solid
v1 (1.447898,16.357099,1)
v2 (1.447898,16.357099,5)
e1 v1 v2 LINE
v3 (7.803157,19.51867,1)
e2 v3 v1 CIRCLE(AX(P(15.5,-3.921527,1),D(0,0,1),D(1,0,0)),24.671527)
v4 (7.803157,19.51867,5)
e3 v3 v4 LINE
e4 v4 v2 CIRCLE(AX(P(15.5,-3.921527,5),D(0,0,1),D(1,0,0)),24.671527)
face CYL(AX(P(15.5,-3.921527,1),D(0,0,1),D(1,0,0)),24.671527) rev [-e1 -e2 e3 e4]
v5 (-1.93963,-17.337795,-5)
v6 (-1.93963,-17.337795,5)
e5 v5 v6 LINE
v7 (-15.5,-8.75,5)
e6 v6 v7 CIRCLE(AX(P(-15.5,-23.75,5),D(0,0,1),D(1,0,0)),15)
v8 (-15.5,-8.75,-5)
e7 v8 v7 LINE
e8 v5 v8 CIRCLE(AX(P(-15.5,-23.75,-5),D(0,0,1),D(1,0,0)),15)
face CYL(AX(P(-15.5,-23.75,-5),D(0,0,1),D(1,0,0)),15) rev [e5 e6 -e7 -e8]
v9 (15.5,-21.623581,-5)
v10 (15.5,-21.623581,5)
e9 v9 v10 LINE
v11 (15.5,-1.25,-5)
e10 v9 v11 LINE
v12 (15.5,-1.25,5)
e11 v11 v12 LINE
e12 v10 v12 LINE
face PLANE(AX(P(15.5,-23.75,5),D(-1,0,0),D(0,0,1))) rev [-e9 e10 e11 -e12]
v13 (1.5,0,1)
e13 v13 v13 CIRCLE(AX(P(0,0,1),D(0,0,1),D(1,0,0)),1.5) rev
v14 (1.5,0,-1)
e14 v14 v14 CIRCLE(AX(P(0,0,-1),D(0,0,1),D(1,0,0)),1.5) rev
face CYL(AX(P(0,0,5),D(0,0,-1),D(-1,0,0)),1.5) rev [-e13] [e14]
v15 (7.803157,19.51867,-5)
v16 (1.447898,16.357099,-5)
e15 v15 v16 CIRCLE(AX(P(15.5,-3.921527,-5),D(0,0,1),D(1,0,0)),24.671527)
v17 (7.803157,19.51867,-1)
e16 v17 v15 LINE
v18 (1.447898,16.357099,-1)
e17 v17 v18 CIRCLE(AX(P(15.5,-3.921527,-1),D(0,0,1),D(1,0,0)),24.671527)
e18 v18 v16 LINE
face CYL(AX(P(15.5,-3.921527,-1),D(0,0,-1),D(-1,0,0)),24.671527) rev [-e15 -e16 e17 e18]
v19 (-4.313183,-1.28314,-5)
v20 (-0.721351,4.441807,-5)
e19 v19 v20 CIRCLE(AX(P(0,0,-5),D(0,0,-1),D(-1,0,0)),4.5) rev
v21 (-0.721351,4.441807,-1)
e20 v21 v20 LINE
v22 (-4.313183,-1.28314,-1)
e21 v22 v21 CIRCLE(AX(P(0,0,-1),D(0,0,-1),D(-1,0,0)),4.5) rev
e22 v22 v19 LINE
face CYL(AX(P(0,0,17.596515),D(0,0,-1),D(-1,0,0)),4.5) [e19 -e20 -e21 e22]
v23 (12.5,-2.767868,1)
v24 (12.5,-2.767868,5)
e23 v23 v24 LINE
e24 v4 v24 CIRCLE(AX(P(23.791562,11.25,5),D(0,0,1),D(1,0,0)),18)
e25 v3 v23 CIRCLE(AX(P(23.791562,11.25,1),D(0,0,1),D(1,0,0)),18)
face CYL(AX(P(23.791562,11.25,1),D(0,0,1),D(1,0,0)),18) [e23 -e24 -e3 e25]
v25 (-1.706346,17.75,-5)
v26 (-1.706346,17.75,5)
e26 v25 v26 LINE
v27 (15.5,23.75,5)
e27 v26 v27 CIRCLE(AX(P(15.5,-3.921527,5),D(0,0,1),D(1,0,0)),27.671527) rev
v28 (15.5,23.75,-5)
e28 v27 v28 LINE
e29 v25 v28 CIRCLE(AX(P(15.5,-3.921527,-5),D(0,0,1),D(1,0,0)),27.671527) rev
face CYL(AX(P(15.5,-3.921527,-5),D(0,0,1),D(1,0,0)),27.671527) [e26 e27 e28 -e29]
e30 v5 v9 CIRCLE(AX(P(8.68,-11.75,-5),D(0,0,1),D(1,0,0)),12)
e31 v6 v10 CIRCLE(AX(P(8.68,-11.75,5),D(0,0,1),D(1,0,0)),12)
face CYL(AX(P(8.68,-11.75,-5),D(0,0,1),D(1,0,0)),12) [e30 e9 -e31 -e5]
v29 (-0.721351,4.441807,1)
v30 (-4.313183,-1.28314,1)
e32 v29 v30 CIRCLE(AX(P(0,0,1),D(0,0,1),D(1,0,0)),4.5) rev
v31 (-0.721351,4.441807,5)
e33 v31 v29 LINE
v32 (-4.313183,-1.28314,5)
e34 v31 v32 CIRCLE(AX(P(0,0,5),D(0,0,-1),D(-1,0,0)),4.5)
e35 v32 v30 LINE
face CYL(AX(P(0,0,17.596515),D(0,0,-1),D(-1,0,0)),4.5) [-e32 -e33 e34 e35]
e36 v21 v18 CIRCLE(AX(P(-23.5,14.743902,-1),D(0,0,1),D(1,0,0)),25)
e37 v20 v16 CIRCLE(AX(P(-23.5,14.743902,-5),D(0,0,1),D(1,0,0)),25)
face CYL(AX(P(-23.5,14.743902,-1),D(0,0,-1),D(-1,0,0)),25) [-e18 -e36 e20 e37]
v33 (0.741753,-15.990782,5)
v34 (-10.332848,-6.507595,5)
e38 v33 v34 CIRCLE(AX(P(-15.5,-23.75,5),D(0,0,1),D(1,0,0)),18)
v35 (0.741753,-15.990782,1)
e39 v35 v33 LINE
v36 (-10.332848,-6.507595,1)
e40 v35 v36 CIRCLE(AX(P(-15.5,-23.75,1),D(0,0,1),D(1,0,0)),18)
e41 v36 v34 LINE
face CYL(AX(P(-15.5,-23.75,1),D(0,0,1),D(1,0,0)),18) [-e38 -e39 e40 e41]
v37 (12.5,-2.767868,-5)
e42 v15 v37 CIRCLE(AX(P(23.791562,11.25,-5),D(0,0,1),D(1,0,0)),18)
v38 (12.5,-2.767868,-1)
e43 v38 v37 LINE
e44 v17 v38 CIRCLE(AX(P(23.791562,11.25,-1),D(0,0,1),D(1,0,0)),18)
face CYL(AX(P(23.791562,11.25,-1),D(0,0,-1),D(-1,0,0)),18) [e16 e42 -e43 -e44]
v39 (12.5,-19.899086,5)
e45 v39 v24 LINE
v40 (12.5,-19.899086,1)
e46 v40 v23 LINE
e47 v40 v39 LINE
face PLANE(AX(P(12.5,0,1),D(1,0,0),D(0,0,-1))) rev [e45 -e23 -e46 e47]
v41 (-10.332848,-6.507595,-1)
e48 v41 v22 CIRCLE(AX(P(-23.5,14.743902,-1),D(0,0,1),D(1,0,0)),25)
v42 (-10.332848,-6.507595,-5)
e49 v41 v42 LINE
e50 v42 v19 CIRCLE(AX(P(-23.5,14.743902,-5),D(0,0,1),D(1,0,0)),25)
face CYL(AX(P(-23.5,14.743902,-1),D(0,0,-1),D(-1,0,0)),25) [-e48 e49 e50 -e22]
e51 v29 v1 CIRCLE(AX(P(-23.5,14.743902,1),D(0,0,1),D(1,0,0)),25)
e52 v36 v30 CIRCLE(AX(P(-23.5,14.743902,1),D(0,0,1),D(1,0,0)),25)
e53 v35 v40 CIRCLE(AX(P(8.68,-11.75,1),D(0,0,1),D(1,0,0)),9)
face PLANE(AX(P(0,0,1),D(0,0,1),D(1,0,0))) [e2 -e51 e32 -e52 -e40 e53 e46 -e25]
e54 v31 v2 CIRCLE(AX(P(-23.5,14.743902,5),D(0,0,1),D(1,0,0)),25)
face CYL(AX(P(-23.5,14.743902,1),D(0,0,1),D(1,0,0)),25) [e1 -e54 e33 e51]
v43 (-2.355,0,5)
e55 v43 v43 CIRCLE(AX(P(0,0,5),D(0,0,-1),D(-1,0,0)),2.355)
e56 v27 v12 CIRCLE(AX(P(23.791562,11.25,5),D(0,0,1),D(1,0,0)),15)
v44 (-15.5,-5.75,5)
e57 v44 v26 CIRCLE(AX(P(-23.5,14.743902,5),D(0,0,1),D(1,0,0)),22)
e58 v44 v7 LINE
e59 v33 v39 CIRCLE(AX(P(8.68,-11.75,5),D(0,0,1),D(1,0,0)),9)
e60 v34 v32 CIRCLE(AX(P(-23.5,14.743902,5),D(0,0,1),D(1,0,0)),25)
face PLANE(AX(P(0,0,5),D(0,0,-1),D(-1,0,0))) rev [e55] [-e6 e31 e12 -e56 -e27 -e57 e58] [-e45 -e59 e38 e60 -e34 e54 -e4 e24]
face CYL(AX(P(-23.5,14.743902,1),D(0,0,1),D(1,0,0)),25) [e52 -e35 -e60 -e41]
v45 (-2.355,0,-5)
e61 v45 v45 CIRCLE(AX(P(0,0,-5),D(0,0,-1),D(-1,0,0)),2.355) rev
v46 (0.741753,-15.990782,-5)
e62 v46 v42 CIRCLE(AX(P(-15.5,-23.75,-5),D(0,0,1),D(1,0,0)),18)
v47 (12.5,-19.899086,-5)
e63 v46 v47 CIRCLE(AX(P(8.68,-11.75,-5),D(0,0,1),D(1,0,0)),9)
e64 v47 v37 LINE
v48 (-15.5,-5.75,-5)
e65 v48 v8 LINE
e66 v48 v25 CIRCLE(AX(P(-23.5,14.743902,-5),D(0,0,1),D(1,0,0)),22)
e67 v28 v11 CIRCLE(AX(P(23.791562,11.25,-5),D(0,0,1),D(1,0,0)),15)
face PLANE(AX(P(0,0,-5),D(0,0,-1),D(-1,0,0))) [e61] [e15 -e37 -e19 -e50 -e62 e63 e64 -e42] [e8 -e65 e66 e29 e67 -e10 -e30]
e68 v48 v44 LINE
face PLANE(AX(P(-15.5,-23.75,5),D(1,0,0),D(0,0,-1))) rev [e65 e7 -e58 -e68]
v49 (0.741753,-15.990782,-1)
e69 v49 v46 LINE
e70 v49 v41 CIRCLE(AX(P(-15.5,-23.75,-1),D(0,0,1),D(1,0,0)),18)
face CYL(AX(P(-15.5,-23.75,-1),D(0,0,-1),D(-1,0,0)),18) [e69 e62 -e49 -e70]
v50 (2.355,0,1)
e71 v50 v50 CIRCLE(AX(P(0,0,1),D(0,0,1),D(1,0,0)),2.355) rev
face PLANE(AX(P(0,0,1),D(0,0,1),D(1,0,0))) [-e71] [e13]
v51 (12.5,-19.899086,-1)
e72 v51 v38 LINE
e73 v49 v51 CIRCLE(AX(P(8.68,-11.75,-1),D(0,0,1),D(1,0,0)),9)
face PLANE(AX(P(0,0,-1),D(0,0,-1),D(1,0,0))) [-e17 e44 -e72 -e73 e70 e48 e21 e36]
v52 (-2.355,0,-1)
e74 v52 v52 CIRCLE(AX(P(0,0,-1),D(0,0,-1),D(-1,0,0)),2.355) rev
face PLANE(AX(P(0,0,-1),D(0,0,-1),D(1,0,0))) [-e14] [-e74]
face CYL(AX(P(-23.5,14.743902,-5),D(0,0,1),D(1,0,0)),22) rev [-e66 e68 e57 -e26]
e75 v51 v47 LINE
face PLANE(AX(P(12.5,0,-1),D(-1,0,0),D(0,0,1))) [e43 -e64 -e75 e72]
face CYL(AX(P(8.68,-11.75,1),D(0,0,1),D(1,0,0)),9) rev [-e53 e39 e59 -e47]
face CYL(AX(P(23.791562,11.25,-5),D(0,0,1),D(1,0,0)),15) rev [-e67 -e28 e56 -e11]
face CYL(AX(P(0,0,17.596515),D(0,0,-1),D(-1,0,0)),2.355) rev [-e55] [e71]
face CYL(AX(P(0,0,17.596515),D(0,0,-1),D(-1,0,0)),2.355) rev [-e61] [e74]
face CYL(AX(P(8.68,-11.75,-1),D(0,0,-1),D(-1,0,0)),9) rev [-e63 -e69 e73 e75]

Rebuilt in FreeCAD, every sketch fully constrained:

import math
import FreeCAD as App
import Part
import Sketcher
from FreeCAD import Vector

doc = App.newDocument("Part")
body = doc.addObject("PartDesign::Body", "Body")

# Sketch on XY plane
sketch1 = body.newObject("Sketcher::SketchObject", "Sketch")
sketch1.AttachmentSupport = (doc.getObject("XY_Plane"), [""])
sketch1.MapMode = "FlatFace"
sketch1.addGeometry([
    Part.LineSegment(Vector(-15.5, 23.8, 0), Vector(-15.5, -23.8, 0)),  # 0
    Part.LineSegment(Vector(-15.5, -23.8, 0), Vector(15.5, -23.8, 0)),  # 1
    Part.LineSegment(Vector(15.5, -23.8, 0), Vector(15.5, 23.8, 0)),  # 2
    Part.LineSegment(Vector(15.5, 23.8, 0), Vector(-15.5, 23.8, 0)),  # 3
    Part.Circle(Vector(0, 0, 0), Vector(0, 0, 1), 1.5),  # 4
], False)
sketch1.addConstraint([
    Sketcher.Constraint("Coincident", 0, 2, 1, 1),
    Sketcher.Constraint("Coincident", 1, 2, 2, 1),
    Sketcher.Constraint("Coincident", 2, 2, 3, 1),
    Sketcher.Constraint("Coincident", 3, 2, 0, 1),
    Sketcher.Constraint("Vertical", 0),
    Sketcher.Constraint("Horizontal", 1),
    Sketcher.Constraint("Vertical", 2),
    Sketcher.Constraint("Horizontal", 3),
    Sketcher.Constraint("Coincident", 4, 3, -1, 1),
    Sketcher.Constraint("Symmetric", 0, 2, 2, 2, -1, 1),
    Sketcher.Constraint("Diameter", 4, 3.0),
    Sketcher.Constraint("DistanceX", 1, 1, 1, 2, 31.0),
    Sketcher.Constraint("DistanceY", 0, 2, 0, 1, 47.5),
])
pad1 = body.newObject("PartDesign::Pad", "Pad")
pad1.Profile = sketch1
pad1.Length = 10
pad1.Midplane = True

# Sketch on XY plane
sketch2 = body.newObject("Sketcher::SketchObject", "Sketch001")
sketch2.AttachmentSupport = (doc.getObject("XY_Plane"), [""])
sketch2.MapMode = "FlatFace"
sketch2.AttachmentOffset = App.Placement(Vector(0, 0, 5), App.Rotation())
sketch2.addGeometry([
    Part.ArcOfCircle(Part.Circle(Vector(-15.5, -23.8, 0), Vector(0, 0, 1), 15), math.radians(90), math.radians(360)),  # 0
    Part.LineSegment(Vector(-0.5, -23.8, 0), Vector(8.7, -23.8, 0)),  # 1
    Part.ArcOfCircle(Part.Circle(Vector(8.7, -11.7, 0), Vector(0, 0, 1), 12), math.radians(-152), math.radians(-90)),  # 2
    Part.ArcOfCircle(Part.Circle(Vector(-15.5, -23.8, 0), Vector(0, 0, 1), 15), math.radians(25), math.radians(90)),  # 3
    Part.LineSegment(Vector(8.7, -23.8, 0), Vector(15.5, -23.8, 0)),  # 4
    Part.LineSegment(Vector(15.5, -23.8, 0), Vector(15.5, -21.6, 0)),  # 5
    Part.ArcOfCircle(Part.Circle(Vector(8.7, -11.8, 0), Vector(0, 0, 1), 12), math.radians(-90), math.radians(-55)),  # 6
    Part.ArcOfCircle(Part.Circle(Vector(15.5, -3.9, 0), Vector(0, 0, 1), 27.7), math.radians(90), math.radians(128)),  # 7
    Part.LineSegment(Vector(15.5, 23.8, 0), Vector(-15.5, 23.8, 0)),  # 8
    Part.LineSegment(Vector(-15.5, 23.8, 0), Vector(-15.5, -5.8, 0)),  # 9
    Part.ArcOfCircle(Part.Circle(Vector(-23.5, 14.7, 0), Vector(0, 0, 1), 22), math.radians(-69), math.radians(8)),  # 10
    Part.ArcOfCircle(Part.Circle(Vector(23.8, 11.2, 0), Vector(0, 0, 1), 15), math.radians(124), math.radians(236)),  # 11
    Part.LineSegment(Vector(15.5, -1.2, 0), Vector(15.5, 23.8, 0)),  # 12
], False)
sketch2.addConstraint([
    Sketcher.Constraint("Coincident", 0, 2, 1, 1),
    Sketcher.Constraint("Tangent", 1, 2, 2, 2),
    Sketcher.Constraint("Coincident", 2, 1, 3, 1),
    Sketcher.Constraint("Tangent", 3, 2, 0, 1),
    Sketcher.Constraint("Coincident", 4, 2, 5, 1),
    Sketcher.Constraint("Coincident", 5, 2, 6, 2),
    Sketcher.Constraint("Tangent", 6, 1, 4, 1),
    Sketcher.Constraint("Tangent", 7, 1, 8, 1),
    Sketcher.Constraint("Coincident", 8, 2, 9, 1),
    Sketcher.Constraint("Coincident", 9, 2, 10, 1),
    Sketcher.Constraint("Coincident", 10, 2, 7, 2),
    Sketcher.Constraint("Coincident", 11, 1, 12, 2),
    Sketcher.Constraint("Coincident", 12, 1, 11, 2),
    Sketcher.Constraint("Horizontal", 1),
    Sketcher.Constraint("Horizontal", 4),
    Sketcher.Constraint("Vertical", 5),
    Sketcher.Constraint("Horizontal", 8),
    Sketcher.Constraint("Vertical", 9),
    Sketcher.Constraint("Vertical", 12),
    Sketcher.Constraint("Coincident", 6, 3, 2, 3),
    Sketcher.Constraint("Coincident", 11, 1, 7, 1),
    Sketcher.Constraint("Equal", 0, 3),
    Sketcher.Constraint("Equal", 2, 6),
    Sketcher.Constraint("Equal", 3, 11),
    Sketcher.Constraint("Symmetric", 4, 2, 8, 2, -1, 1),
    Sketcher.Constraint("Horizontal", 3, 3, 0, 2),
    Sketcher.Constraint("Vertical", 0, 3, 3, 2),
    Sketcher.Constraint("Vertical", 7, 3, 4, 2),
    Sketcher.Constraint("Vertical", 3, 2, 8, 2),
    Sketcher.Constraint("Radius", 0, 15.0),
    Sketcher.Constraint("Radius", 2, 12.0),
    Sketcher.Constraint("Radius", 10, 22.0),
    Sketcher.Constraint("DistanceX", 8, 2, 8, 1, 31.0),
    Sketcher.Constraint("DistanceY", 12, 1, 12, 2, 25.0),
    Sketcher.Constraint("DistanceY", 9, 2, 9, 1, 29.5),
    Sketcher.Constraint("DistanceX", 10, 3, 0, 3, 8.0),
    Sketcher.Constraint("DistanceY", 2, 3, 11, 3, 23.0),
    Sketcher.Constraint("DistanceY", 10, 2, 8, 2, 6.0),
    Sketcher.Constraint("DistanceX", 1, 1, 1, 2, 9.18),
])
pocket1 = body.newObject("PartDesign::Pocket", "Pocket")
pocket1.Profile = sketch2
pocket1.Length = 10

# Sketch on XY plane
sketch3 = body.newObject("Sketcher::SketchObject", "Sketch002")
sketch3.AttachmentSupport = (doc.getObject("XY_Plane"), [""])
sketch3.MapMode = "FlatFace"
sketch3.AttachmentOffset = App.Placement(Vector(0, 0, 1), App.Rotation())
sketch3.addGeometry([
    Part.ArcOfCircle(Part.Circle(Vector(-15.5, -23.7, 0), Vector(0, 0, 1), 18), math.radians(26), math.radians(73)),  # 0
    Part.ArcOfCircle(Part.Circle(Vector(8.7, -11.8, 0), Vector(0, 0, 1), 9), math.radians(-152), math.radians(-65)),  # 1
    Part.LineSegment(Vector(12.5, -19.9, 0), Vector(12.5, -2.8, 0)),  # 2
    Part.ArcOfCircle(Part.Circle(Vector(23.8, 11.2, 0), Vector(0, 0, 1), 18), math.radians(153), math.radians(231)),  # 3
    Part.ArcOfCircle(Part.Circle(Vector(15.5, -3.9, 0), Vector(0, 0, 1), 24.7), math.radians(108.18), math.radians(124.72)),  # 4
    Part.ArcOfCircle(Part.Circle(Vector(-23.5, 14.7, 0), Vector(0, 0, 1), 25), math.radians(-58), math.radians(4)),  # 5
    Part.Circle(Vector(0, 0, 0), Vector(0, 0, 1), 1.5),  # 6
], False)
sketch3.addConstraint([
    Sketcher.Constraint("Coincident", 0, 1, 1, 1),
    Sketcher.Constraint("Coincident", 1, 2, 2, 1),
    Sketcher.Constraint("Coincident", 2, 2, 3, 2),
    Sketcher.Constraint("Coincident", 3, 1, 4, 1),
    Sketcher.Constraint("Coincident", 4, 2, 5, 2),
    Sketcher.Constraint("Coincident", 5, 1, 0, 2),
    Sketcher.Constraint("Vertical", 2),
    Sketcher.Constraint("Coincident", 6, 3, -1, 1),
    Sketcher.Constraint("Equal", 0, 3),
    Sketcher.Constraint("Diameter", 6, 3.0),
    Sketcher.Constraint("Radius", 0, 18.0),
    Sketcher.Constraint("Radius", 1, 9.0),
    Sketcher.Constraint("Radius", 5, 25.0),
    Sketcher.Constraint("DistanceY", 0, 3, 1, 3, 12.0),
    Sketcher.Constraint("DistanceY", 1, 3, 3, 3, 23.0),
    Sketcher.Constraint("DistanceX", 0, 3, 4, 3, 31.0),
    Sketcher.Constraint("DistanceX", 5, 3, 0, 3, 8.0),
    Sketcher.Constraint("DistanceX", 1, 2, 4, 3, 3.0),
    Sketcher.Constraint("DistanceX", 0, 3, -1, 1, 15.5),
    Sketcher.Constraint("DistanceY", 0, 3, -1, 1, 23.75),
    Sketcher.Constraint("DistanceX", -1, 1, 1, 3, 8.68),
    Sketcher.Constraint("Radius", 4, 24.671527),
    Sketcher.Constraint("DistanceY", -1, 1, 5, 3, 14.743902),
    Sketcher.Constraint("DistanceY", -1, 1, 4, 2, 16.357099),
    Sketcher.Constraint("DistanceY", 2, 1, 2, 2, 17.131218),
])
pocket2 = body.newObject("PartDesign::Pocket", "Pocket001")
pocket2.Profile = sketch3
pocket2.Length = 4
pocket2.Reversed = True
doc.recompute()

mirrored = body.newObject("PartDesign::Mirrored", "Mirrored")
mirrored.Originals = [pocket2]
mirrored.MirrorPlane = (doc.getObject("XY_Plane"), [""])
body.Tip = mirrored

# Sketch on XY plane
sketch4 = body.newObject("Sketcher::SketchObject", "Sketch003")
sketch4.AttachmentSupport = (doc.getObject("XY_Plane"), [""])
sketch4.MapMode = "FlatFace"
sketch4.AttachmentOffset = App.Placement(Vector(0, 0, -5), App.Rotation())
sketch4.addGeometry([
    Part.ArcOfCircle(Part.Circle(Vector(0, 0, 0), Vector(0, 0, 1), 4.5), math.radians(-163), math.radians(0)),
    Part.ArcOfCircle(Part.Circle(Vector(0, 0, 0), Vector(0, 0, 1), 4.5), math.radians(0), math.radians(99)),
    Part.ArcOfCircle(Part.Circle(Vector(-23.5, 14.7, 0), Vector(0, 0, 1), 25), math.radians(-39.87), math.radians(-24.34)),
    Part.Circle(Vector(0, 0, 0), Vector(0, 0, 1), 2.4),
], False)
sketch4.addConstraint([
    Sketcher.Constraint("Tangent", 0, 2, 1, 1),
    Sketcher.Constraint("Coincident", 1, 2, 2, 2),
    Sketcher.Constraint("Coincident", 2, 1, 0, 1),
    Sketcher.Constraint("Coincident", 0, 3, -1, 1),
    Sketcher.Constraint("Coincident", 3, 3, -1, 1),
    Sketcher.Constraint("Equal", 0, 1),
    Sketcher.Constraint("PointOnObject", 0, 2, -1),
    Sketcher.Constraint("Radius", 2, 25.0),
    Sketcher.Constraint("Radius", 0, 4.5),
    Sketcher.Constraint("Diameter", 3, 4.71),
    Sketcher.Constraint("DistanceX", 2, 3, 0, 2, 28.0),
    Sketcher.Constraint("DistanceY", -1, 1, 2, 3, 14.743902),
])
pad2 = body.newObject("PartDesign::Pad", "Pad001")
pad2.Profile = sketch4
pad2.Length = 10

doc.recompute()
